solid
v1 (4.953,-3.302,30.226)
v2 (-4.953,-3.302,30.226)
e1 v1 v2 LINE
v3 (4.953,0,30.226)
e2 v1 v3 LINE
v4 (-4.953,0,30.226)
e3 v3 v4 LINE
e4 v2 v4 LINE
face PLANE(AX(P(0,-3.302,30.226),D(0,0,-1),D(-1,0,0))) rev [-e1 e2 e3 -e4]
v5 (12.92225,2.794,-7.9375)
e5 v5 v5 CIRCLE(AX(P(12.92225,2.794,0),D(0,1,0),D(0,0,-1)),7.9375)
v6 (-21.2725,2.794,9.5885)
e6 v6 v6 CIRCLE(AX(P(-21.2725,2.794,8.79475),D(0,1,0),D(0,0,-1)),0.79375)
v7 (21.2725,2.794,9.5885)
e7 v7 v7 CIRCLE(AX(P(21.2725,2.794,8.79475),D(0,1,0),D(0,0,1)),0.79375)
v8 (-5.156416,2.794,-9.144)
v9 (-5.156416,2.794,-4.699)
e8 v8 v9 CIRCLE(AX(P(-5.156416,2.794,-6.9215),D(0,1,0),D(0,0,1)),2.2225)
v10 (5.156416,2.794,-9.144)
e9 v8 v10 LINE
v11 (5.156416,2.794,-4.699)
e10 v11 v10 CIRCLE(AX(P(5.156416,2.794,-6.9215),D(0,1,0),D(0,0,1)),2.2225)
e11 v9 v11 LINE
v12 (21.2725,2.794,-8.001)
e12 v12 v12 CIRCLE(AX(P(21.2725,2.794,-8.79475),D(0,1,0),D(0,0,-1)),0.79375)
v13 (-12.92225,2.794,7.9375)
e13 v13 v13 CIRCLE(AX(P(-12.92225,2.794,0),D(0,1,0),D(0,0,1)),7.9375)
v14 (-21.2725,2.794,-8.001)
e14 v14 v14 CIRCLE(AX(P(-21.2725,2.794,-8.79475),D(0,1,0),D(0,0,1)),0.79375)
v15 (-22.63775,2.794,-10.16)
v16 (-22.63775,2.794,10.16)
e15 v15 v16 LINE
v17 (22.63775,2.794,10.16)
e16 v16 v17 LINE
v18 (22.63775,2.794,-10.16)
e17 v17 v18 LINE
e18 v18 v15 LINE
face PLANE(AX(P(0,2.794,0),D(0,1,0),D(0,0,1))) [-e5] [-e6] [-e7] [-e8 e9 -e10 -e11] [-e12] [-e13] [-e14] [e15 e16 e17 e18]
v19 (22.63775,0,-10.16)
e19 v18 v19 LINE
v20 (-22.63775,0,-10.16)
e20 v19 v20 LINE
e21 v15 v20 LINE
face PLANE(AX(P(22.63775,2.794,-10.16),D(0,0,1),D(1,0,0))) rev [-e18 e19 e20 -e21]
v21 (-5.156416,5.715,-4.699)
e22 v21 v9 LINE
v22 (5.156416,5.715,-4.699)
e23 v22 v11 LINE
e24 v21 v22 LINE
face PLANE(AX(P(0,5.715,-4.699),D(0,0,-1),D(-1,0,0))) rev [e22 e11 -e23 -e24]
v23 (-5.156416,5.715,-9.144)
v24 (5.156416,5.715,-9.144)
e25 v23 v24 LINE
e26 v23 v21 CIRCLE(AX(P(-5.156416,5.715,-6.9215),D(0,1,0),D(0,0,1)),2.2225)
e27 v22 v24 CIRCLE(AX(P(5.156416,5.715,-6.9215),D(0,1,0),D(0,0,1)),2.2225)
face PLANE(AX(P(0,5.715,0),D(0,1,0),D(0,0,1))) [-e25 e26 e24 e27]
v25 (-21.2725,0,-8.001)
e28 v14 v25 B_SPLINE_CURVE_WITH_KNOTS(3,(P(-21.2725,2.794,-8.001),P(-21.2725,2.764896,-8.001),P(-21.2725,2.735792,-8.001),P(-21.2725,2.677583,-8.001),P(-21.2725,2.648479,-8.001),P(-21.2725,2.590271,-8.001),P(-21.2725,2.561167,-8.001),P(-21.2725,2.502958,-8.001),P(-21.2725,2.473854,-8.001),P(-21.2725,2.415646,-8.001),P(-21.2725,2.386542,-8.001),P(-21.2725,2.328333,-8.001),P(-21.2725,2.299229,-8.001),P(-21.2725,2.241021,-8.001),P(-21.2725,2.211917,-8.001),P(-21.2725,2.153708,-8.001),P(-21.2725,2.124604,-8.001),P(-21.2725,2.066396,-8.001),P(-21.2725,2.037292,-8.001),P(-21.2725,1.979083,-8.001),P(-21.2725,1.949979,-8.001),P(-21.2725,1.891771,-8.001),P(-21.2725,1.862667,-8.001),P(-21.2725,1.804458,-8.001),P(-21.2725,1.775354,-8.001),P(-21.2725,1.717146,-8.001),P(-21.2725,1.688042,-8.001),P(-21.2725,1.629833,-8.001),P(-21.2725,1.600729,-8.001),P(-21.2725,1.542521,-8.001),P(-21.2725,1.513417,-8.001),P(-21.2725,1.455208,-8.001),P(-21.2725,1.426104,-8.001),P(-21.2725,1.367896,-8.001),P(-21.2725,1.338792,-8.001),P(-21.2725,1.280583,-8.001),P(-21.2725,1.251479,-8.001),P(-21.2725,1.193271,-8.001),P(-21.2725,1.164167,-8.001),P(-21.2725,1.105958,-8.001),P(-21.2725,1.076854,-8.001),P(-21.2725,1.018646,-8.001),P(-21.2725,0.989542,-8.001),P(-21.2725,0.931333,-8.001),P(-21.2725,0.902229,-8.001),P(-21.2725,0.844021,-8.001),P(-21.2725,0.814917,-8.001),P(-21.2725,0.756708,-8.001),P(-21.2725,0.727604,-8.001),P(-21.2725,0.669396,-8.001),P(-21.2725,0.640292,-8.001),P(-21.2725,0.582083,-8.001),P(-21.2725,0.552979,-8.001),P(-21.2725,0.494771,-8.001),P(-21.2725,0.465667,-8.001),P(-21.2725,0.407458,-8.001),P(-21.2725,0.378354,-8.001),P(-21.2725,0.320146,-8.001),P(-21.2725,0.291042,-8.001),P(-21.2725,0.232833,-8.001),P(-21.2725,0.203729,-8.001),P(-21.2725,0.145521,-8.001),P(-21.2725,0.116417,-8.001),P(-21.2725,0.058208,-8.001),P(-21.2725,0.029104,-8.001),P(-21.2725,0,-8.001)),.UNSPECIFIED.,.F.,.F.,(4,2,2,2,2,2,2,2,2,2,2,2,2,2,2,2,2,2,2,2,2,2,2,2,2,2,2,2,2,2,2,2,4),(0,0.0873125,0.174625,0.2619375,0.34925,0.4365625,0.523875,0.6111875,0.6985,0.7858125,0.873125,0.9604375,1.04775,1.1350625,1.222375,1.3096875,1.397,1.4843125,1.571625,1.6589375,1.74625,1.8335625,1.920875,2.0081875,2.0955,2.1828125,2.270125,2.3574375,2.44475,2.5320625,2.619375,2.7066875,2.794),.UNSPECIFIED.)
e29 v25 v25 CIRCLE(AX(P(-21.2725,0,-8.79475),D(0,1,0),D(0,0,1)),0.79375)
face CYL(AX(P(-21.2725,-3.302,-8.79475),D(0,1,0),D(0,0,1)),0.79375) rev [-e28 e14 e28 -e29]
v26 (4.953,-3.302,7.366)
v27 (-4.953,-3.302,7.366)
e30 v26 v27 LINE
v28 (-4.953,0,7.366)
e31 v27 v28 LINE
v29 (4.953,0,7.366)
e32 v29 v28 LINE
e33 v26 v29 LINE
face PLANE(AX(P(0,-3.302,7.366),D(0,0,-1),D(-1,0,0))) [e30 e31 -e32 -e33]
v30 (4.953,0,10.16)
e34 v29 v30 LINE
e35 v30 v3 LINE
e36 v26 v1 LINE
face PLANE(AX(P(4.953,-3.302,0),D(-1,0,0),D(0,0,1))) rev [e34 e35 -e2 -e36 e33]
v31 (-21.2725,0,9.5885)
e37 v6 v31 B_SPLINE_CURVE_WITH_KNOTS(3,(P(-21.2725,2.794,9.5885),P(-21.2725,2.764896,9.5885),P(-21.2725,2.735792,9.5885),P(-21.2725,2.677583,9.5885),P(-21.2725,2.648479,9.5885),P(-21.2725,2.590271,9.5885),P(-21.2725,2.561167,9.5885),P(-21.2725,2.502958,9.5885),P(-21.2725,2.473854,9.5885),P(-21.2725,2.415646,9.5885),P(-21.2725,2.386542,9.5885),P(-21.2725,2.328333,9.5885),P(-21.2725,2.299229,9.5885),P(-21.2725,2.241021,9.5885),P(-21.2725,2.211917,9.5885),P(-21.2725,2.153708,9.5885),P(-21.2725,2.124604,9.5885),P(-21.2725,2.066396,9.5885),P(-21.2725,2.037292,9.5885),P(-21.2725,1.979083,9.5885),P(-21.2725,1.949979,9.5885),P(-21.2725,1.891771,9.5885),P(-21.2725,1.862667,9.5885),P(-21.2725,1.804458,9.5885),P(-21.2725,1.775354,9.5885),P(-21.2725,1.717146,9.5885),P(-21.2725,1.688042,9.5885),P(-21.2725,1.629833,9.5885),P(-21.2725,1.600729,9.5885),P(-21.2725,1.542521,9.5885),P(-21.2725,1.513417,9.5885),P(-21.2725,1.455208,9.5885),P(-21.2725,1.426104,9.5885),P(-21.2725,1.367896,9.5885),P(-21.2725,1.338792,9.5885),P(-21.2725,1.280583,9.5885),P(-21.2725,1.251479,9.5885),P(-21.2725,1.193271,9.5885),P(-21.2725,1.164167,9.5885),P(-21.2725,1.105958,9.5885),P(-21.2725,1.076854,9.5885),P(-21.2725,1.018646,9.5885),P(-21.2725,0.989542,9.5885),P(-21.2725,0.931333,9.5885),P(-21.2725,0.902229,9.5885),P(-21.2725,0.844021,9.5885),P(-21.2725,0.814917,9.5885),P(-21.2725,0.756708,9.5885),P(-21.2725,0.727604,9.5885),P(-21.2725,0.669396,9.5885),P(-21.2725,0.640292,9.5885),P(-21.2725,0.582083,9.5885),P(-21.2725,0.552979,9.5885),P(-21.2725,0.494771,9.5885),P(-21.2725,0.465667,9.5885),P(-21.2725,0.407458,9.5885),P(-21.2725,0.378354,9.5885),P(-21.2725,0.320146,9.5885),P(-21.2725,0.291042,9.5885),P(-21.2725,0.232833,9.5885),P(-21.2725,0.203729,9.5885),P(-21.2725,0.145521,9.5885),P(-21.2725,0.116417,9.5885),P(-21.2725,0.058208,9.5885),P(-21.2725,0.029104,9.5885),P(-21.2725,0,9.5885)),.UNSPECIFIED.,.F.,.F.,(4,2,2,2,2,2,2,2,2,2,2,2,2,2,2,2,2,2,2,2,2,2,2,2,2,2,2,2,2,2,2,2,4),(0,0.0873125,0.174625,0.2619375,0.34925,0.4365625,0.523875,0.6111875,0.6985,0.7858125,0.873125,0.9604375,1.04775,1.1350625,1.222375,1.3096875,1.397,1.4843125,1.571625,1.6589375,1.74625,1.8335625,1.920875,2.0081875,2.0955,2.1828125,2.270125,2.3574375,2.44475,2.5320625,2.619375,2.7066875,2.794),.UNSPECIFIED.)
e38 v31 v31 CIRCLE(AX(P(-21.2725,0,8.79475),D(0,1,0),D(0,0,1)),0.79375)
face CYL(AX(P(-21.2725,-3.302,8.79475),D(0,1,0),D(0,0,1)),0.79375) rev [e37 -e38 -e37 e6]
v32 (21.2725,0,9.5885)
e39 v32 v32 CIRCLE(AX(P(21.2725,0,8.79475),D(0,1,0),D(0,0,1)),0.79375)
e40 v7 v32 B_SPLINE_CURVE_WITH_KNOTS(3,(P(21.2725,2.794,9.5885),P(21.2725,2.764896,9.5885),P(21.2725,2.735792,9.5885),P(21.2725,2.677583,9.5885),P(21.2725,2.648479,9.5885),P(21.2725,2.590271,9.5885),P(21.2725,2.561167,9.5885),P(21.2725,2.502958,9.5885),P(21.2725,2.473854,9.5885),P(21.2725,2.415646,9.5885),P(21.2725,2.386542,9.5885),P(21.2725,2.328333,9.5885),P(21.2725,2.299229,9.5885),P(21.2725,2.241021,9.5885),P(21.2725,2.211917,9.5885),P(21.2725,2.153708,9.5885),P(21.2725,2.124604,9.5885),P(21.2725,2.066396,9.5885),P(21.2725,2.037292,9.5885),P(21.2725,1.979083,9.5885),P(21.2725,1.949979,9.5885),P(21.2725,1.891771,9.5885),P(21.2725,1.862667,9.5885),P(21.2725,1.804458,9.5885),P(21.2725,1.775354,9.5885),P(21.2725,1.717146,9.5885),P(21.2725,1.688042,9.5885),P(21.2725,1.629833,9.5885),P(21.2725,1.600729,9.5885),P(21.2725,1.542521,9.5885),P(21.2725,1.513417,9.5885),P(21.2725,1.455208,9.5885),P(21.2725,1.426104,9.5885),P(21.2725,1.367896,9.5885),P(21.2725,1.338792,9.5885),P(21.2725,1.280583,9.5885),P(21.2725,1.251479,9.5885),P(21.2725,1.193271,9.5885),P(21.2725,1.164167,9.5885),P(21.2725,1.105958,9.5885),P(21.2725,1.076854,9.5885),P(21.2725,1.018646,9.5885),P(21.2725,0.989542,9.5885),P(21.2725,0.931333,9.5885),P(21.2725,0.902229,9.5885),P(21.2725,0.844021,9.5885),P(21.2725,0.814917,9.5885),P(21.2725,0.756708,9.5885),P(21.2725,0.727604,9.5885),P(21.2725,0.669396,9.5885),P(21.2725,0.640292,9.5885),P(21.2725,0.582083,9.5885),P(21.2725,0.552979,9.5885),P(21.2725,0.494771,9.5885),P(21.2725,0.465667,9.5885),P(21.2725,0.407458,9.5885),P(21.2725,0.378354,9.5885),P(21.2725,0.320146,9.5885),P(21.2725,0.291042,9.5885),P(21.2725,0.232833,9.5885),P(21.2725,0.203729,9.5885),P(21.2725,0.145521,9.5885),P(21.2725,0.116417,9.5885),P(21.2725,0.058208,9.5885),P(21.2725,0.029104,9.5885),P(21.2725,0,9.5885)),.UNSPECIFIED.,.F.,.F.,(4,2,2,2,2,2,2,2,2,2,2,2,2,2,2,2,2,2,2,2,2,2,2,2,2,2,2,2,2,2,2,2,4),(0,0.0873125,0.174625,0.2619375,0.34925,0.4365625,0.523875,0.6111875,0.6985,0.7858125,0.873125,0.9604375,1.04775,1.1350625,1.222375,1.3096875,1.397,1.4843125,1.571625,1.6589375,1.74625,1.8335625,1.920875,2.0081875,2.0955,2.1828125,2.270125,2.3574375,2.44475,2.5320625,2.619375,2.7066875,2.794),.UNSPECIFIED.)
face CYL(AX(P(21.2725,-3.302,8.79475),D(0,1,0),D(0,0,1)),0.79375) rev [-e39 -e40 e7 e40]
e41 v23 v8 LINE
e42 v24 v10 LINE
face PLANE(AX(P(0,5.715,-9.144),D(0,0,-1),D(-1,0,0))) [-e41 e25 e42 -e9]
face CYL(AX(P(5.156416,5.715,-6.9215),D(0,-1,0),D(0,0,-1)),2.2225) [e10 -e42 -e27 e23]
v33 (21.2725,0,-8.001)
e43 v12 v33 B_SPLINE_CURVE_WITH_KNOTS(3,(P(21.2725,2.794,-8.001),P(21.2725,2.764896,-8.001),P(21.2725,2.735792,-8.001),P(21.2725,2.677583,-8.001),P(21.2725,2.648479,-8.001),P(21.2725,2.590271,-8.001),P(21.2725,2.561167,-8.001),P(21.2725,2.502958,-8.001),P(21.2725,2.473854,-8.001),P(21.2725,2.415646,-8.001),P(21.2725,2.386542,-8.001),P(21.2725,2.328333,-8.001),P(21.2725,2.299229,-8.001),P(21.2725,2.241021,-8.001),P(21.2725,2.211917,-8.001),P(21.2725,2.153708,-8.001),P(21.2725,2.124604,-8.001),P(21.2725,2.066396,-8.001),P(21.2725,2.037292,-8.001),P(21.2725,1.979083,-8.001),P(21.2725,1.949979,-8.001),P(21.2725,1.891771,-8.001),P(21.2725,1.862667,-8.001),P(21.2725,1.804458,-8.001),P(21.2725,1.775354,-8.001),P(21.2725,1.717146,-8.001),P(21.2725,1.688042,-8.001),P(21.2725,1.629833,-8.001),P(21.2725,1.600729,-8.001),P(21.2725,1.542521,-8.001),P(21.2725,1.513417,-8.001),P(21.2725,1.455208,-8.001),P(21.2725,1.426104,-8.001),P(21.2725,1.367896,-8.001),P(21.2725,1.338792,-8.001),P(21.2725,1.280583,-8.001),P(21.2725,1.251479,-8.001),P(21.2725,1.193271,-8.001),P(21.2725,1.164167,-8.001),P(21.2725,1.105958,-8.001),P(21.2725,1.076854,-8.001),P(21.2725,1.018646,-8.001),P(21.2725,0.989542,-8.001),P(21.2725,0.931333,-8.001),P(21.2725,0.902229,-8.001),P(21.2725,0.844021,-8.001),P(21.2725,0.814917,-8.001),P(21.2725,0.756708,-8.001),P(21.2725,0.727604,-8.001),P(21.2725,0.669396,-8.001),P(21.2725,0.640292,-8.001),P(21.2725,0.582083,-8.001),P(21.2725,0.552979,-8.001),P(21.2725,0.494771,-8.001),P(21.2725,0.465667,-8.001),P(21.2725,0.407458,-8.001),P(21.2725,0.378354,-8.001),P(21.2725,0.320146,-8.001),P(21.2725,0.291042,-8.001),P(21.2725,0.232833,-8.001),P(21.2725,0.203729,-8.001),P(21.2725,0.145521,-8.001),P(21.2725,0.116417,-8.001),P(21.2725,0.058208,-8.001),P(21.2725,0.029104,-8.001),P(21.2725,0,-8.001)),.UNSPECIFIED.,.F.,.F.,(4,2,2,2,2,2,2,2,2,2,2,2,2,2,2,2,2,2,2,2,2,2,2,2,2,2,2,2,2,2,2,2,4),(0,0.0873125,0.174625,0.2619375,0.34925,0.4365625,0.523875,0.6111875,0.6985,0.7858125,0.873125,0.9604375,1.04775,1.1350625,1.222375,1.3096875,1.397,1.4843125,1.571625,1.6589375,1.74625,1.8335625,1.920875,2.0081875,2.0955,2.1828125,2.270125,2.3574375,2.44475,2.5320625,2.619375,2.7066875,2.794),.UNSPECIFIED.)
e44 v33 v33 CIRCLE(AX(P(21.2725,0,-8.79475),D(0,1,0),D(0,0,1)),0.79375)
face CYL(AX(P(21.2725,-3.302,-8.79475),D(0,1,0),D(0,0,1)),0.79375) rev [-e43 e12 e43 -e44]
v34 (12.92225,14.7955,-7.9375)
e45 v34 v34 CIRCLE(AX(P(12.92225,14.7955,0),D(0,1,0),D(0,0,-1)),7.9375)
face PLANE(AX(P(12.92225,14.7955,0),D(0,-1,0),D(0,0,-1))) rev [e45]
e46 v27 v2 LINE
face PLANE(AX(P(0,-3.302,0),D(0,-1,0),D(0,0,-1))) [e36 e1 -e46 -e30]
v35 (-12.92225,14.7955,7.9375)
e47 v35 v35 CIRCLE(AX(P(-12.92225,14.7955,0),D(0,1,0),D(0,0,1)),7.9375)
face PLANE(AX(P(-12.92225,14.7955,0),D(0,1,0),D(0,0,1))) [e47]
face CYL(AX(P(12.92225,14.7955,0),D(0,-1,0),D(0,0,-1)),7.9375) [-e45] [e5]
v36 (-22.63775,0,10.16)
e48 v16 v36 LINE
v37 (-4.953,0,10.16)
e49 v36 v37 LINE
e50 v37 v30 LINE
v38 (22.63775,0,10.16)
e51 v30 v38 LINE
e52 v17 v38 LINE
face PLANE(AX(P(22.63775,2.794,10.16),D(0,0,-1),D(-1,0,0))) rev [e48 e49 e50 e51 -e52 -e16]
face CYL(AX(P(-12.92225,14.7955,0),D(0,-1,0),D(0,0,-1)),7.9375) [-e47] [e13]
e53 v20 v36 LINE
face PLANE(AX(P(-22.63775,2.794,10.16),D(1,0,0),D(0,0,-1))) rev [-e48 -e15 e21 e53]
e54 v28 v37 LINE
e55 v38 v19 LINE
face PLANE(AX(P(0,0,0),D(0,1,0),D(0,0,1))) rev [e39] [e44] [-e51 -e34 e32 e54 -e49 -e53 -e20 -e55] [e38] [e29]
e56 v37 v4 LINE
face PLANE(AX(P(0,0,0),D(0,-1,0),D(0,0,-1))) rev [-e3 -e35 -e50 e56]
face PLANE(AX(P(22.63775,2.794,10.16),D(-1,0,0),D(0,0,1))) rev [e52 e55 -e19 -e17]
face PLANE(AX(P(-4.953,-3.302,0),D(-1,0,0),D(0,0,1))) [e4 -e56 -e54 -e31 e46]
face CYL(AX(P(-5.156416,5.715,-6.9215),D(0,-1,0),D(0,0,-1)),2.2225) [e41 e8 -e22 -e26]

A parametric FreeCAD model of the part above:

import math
import FreeCAD as App
import Part
import Sketcher
Q = App.Units.Quantity

doc = App.newDocument("Part")
body = doc.addObject("PartDesign::Body", "Body")

# Sketch on XZ plane
sketch1 = body.newObject("Sketcher::SketchObject", "Sketch")
sketch1.AttachmentSupport = (doc.getObject("XZ_Plane"), [""])
sketch1.MapMode = "FlatFace"
sketch1.addGeometry([
    Part.LineSegment(App.Vector(-22.63775, -10.16, 0), App.Vector(-22.63775, 10.16, 0)),
    Part.LineSegment(App.Vector(-22.63775, 10.16, 0), App.Vector(22.63775, 10.16, 0)),
    Part.LineSegment(App.Vector(22.63775, 10.16, 0), App.Vector(22.63775, -10.16, 0)),
    Part.LineSegment(App.Vector(22.63775, -10.16, 0), App.Vector(-22.63775, -10.16, 0)),
], False)
sketch1.addConstraint([
    Sketcher.Constraint("Coincident", 0, 2, 1, 1),
    Sketcher.Constraint("Coincident", 1, 2, 2, 1),
    Sketcher.Constraint("Coincident", 2, 2, 3, 1),
    Sketcher.Constraint("Coincident", 3, 2, 0, 1),
    Sketcher.Constraint("Vertical", 0),
    Sketcher.Constraint("Horizontal", 1),
    Sketcher.Constraint("Vertical", 2),
    Sketcher.Constraint("Horizontal", 3),
    Sketcher.Constraint("Symmetric", 0, 2, 2, 2, -1, 1),
    Sketcher.Constraint("DistanceY", 0, 1, 0, 2, Q("0.8 in")),
    Sketcher.Constraint("DistanceX", 1, 1, 1, 2, Q("1.7825 in")),
])
pad1 = body.newObject("PartDesign::Pad", "Pad")
pad1.Profile = sketch1
pad1.Length = Q("0.11 in")
pad1.Reversed = True

# Sketch on XZ plane
sketch2 = body.newObject("Sketcher::SketchObject", "Sketch001")
sketch2.AttachmentSupport = (doc.getObject("XZ_Plane"), [""])
sketch2.MapMode = "FlatFace"
sketch2.AttachmentOffset = App.Placement(App.Vector(0, 0, -0.11 * 25.4), App.Rotation())
sketch2.addGeometry([
    Part.Circle(App.Vector(-12.92225, 0, 0), App.Vector(0, 0, 1), 7.9375),
    Part.Circle(App.Vector(12.92225, 0, 0), App.Vector(0, 0, 1), 7.9375),
], False)
sketch2.addConstraint([
    Sketcher.Constraint("Equal", 0, 1),
    Sketcher.Constraint("Symmetric", 0, 3, 1, 3, -1, 1),
    Sketcher.Constraint("PointOnObject", 0, 3, -1),
    Sketcher.Constraint("Diameter", 0, Q("0.625 in")),
    Sketcher.Constraint("DistanceX", 0, 3, 1, 3, Q("1.0175 in")),
])
pad2 = body.newObject("PartDesign::Pad", "Pad001")
pad2.Profile = sketch2
pad2.Length = Q("0.4725 in")
pad2.Reversed = True

# Sketch on XZ plane
sketch3 = body.newObject("Sketcher::SketchObject", "Sketch002")
sketch3.AttachmentSupport = (doc.getObject("XZ_Plane"), [""])
sketch3.MapMode = "FlatFace"
sketch3.AttachmentOffset = App.Placement(App.Vector(0, 0, -0.11 * 25.4), App.Rotation())
sketch3.addGeometry([
    Part.LineSegment(App.Vector(5.156416, -9.144, 0), App.Vector(-5.156416, -9.144, 0)),
    Part.ArcOfCircle(Part.Circle(App.Vector(-5.156416, -6.9215, 0), App.Vector(0, 0, 1), 2.2225), math.radians(90), math.radians(270)),
    Part.LineSegment(App.Vector(-5.156416, -4.699, 0), App.Vector(5.156416, -4.699, 0)),
    Part.ArcOfCircle(Part.Circle(App.Vector(5.156416, -6.9215, 0), App.Vector(0, 0, 1), 2.2225), math.radians(-90), math.radians(90)),
], False)
sketch3.addConstraint([
    Sketcher.Constraint("Tangent", 0, 2, 1, 2),
    Sketcher.Constraint("Tangent", 1, 1, 2, 1),
    Sketcher.Constraint("Tangent", 2, 2, 3, 2),
    Sketcher.Constraint("Tangent", 3, 1, 0, 1),
    Sketcher.Constraint("Horizontal", 0),
    Sketcher.Constraint("Horizontal", 2),
    Sketcher.Constraint("Radius", 1, Q("0.0875 in")),
    Sketcher.Constraint("DistanceY", 0, 2, -1, 1, Q("0.36 in")),
    Sketcher.Constraint("DistanceX", 0, 2, 0, 1, 10.312832),
    Sketcher.Constraint("DistanceX", 1, 3, -1, 1, 5.156416),
])
pad3 = body.newObject("PartDesign::Pad", "Pad002")
pad3.Profile = sketch3
pad3.Length = Q("0.115 in")
pad3.Reversed = True

# Sketch on XZ plane
sketch4 = body.newObject("Sketcher::SketchObject", "Sketch003")
sketch4.AttachmentSupport = (doc.getObject("XZ_Plane"), [""])
sketch4.MapMode = "FlatFace"
sketch4.addGeometry([
    Part.LineSegment(App.Vector(-4.953, 30.226, 0), App.Vector(-4.953, 7.366, 0)),
    Part.LineSegment(App.Vector(-4.953, 7.366, 0), App.Vector(4.953, 7.366, 0)),
    Part.LineSegment(App.Vector(4.953, 7.366, 0), App.Vector(4.953, 30.226, 0)),
    Part.LineSegment(App.Vector(4.953, 30.226, 0), App.Vector(-4.953, 30.226, 0)),
], False)
sketch4.addConstraint([
    Sketcher.Constraint("Coincident", 0, 2, 1, 1),
    Sketcher.Constraint("Coincident", 1, 2, 2, 1),
    Sketcher.Constraint("Coincident", 2, 2, 3, 1),
    Sketcher.Constraint("Coincident", 3, 2, 0, 1),
    Sketcher.Constraint("Vertical", 0),
    Sketcher.Constraint("Horizontal", 1),
    Sketcher.Constraint("Vertical", 2),
    Sketcher.Constraint("Horizontal", 3),
    Sketcher.Constraint("DistanceY", 0, 2, 0, 1, Q("0.9 in")),
    Sketcher.Constraint("DistanceX", 1, 1, 1, 2, Q("0.39 in")),
    Sketcher.Constraint("DistanceY", -1, 1, 0, 2, Q("0.29 in")),
    Sketcher.Constraint("DistanceX", 0, 2, -1, 1, Q("0.195 in")),
])
pad4 = body.newObject("PartDesign::Pad", "Pad003")
pad4.Profile = sketch4
pad4.Length = Q("0.13 in")

# Sketch on XZ plane
sketch5 = body.newObject("Sketcher::SketchObject", "Sketch004")
sketch5.AttachmentSupport = (doc.getObject("XZ_Plane"), [""])
sketch5.MapMode = "FlatFace"
sketch5.AttachmentOffset = App.Placement(App.Vector(0, 0, -0.11 * 25.4), App.Rotation())
sketch5.addGeometry([
    Part.Circle(App.Vector(-21.2725, -8.79475, 0), App.Vector(0, 0, 1), 0.79375),
    Part.Circle(App.Vector(-21.2725, 8.79475, 0), App.Vector(0, 0, 1), 0.79375),
    Part.Circle(App.Vector(21.2725, 8.79475, 0), App.Vector(0, 0, 1), 0.79375),
    Part.Circle(App.Vector(21.2725, -8.79475, 0), App.Vector(0, 0, 1), 0.79375),
], False)
sketch5.addConstraint([
    Sketcher.Constraint("Equal", 0, 1),
    Sketcher.Constraint("Equal", 1, 2),
    Sketcher.Constraint("Equal", 2, 3),
    Sketcher.Constraint("Symmetric", 0, 3, 2, 3, -1, 1),
    Sketcher.Constraint("Symmetric", 1, 3, 3, 3, -1, 1),
    Sketcher.Constraint("Symmetric", 1, 3, 2, 3, -2),
    Sketcher.Constraint("Diameter", 0, Q("0.0625 in")),
    Sketcher.Constraint("DistanceX", 1, 3, 2, 3, Q("1.675 in")),
    Sketcher.Constraint("DistanceY", 0, 3, 1, 3, Q("0.6925 in")),
])
pocket1 = body.newObject("PartDesign::Pocket", "Pocket")
pocket1.Profile = sketch5
pocket1.Type = "ThroughAll"
pocket1.Reversed = True

doc.recompute()
